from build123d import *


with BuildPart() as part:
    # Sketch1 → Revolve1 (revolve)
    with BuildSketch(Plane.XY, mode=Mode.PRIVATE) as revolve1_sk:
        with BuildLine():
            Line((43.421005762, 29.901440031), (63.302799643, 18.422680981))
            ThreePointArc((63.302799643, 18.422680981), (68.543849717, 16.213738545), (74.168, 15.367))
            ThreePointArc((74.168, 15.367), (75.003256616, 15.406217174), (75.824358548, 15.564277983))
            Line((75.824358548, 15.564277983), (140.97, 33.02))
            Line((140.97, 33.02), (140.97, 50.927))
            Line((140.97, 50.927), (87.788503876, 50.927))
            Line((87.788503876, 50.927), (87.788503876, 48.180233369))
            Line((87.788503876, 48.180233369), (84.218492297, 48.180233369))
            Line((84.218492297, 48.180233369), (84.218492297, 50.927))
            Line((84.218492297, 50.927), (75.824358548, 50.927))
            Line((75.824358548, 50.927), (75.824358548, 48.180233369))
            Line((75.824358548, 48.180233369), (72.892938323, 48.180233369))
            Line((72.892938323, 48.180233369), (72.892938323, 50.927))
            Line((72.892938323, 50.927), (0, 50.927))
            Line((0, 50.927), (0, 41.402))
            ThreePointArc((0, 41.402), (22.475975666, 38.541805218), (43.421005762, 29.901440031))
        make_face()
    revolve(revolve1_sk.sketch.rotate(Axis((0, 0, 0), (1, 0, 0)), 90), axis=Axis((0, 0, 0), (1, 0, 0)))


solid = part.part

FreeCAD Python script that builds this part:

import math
import FreeCAD as App
import Part
import Sketcher
Q = App.Units.Quantity

doc = App.newDocument("Part")
body = doc.addObject("PartDesign::Body", "Body")

sketch1 = body.newObject("Sketcher::SketchObject", "Sketch")
sketch1.AttachmentSupport = (doc.getObject("XY_Plane"), [""])
sketch1.MapMode = "FlatFace"
sketch1.addGeometry([
    Part.LineSegment(App.Vector(43.4, 29.9, 0), App.Vector(63.3, 18.4, 0)),
    Part.ArcOfCircle(Part.Circle(App.Vector(74.7, 38.2, 0), App.Vector(0, 0, 1), 22.9), math.radians(-120), math.radians(-91)),
    Part.ArcOfCircle(Part.Circle(App.Vector(74.3, 21.2, 0), App.Vector(0, 0, 1), 5.8), math.radians(-91.42), math.radians(-75)),
    Part.LineSegment(App.Vector(75.8, 15.6, 0), App.Vector(141, 33, 0)),
    Part.LineSegment(App.Vector(141, 33, 0), App.Vector(141, 50.9, 0)),
    Part.LineSegment(App.Vector(141, 50.9, 0), App.Vector(87.8, 50.9, 0)),
    Part.LineSegment(App.Vector(87.8, 50.9, 0), App.Vector(87.8, 48.2, 0)),
    Part.LineSegment(App.Vector(87.8, 48.2, 0), App.Vector(84.2, 48.2, 0)),
    Part.LineSegment(App.Vector(84.2, 48.2, 0), App.Vector(84.2, 50.9, 0)),
    Part.LineSegment(App.Vector(84.2, 50.9, 0), App.Vector(75.8, 50.9, 0)),
    Part.LineSegment(App.Vector(75.8, 50.9, 0), App.Vector(75.8, 48.2, 0)),
    Part.LineSegment(App.Vector(75.8, 48.2, 0), App.Vector(72.9, 48.2, 0)),
    Part.LineSegment(App.Vector(72.9, 48.2, 0), App.Vector(72.9, 50.9, 0)),
    Part.LineSegment(App.Vector(72.9, 50.9, 0), App.Vector(0, 50.9, 0)),
    Part.LineSegment(App.Vector(0, 50.9, 0), App.Vector(0, 41.4, 0)),
    Part.ArcOfCircle(Part.Circle(App.Vector(0.5, -44.4, 0), App.Vector(0, 0, 1), 85.9), math.radians(60), math.radians(90)),
], False)
sketch1.addConstraint([
    Sketcher.Constraint("Tangent", 0, 2, 1, 1),
    Sketcher.Constraint("Tangent", 1, 2, 2, 1),
    Sketcher.Constraint("Tangent", 2, 2, 3, 1),
    Sketcher.Constraint("Coincident", 3, 2, 4, 1),
    Sketcher.Constraint("Coincident", 4, 2, 5, 1),
    Sketcher.Constraint("Coincident", 5, 2, 6, 1),
    Sketcher.Constraint("Coincident", 6, 2, 7, 1),
    Sketcher.Constraint("Coincident", 7, 2, 8, 1),
    Sketcher.Constraint("Coincident", 8, 2, 9, 1),
    Sketcher.Constraint("Coincident", 9, 2, 10, 1),
    Sketcher.Constraint("Coincident", 10, 2, 11, 1),
    Sketcher.Constraint("Coincident", 11, 2, 12, 1),
    Sketcher.Constraint("Coincident", 12, 2, 13, 1),
    Sketcher.Constraint("Coincident", 13, 2, 14, 1),
    Sketcher.Constraint("Coincident", 14, 2, 15, 2),
    Sketcher.Constraint("Tangent", 15, 1, 0, 1),
    Sketcher.Constraint("Vertical", 4),
    Sketcher.Constraint("Horizontal", 5),
    Sketcher.Constraint("Vertical", 6),
    Sketcher.Constraint("Horizontal", 7),
    Sketcher.Constraint("Vertical", 8),
    Sketcher.Constraint("Horizontal", 9),
    Sketcher.Constraint("Vertical", 10),
    Sketcher.Constraint("Horizontal", 11),
    Sketcher.Constraint("Vertical", 12),
    Sketcher.Constraint("Horizontal", 13),
    Sketcher.Constraint("Vertical", 14),
    Sketcher.Constraint("PointOnObject", 13, 2, -2),
    Sketcher.Constraint("Horizontal", 5, 2, 8, 2),
    Sketcher.Constraint("Horizontal", 7, 2, 10, 2),
    Sketcher.Constraint("Horizontal", 9, 2, 12, 2),
    Sketcher.Constraint("Vertical", 2, 2, 9, 2),
    Sketcher.Constraint("Radius", 1, Q("0.9 in")),
    Sketcher.Constraint("Radius", 2, Q("0.23 in")),
    Sketcher.Constraint("Radius", 15, Q("3.38 in")),
    Sketcher.Constraint("Angle", 0, Q("-30 deg")),
    Sketcher.Constraint("Angle", 3, Q("15 deg")),
    Sketcher.Constraint("DistanceY", -1, 1, 3, 2, Q("1.3 in")),
    Sketcher.Constraint("DistanceY", 1, 2, 4, 2, Q("1.4 in")),
    Sketcher.Constraint("DistanceY", 4, 1, 4, 2, Q("0.705 in")),
    Sketcher.Constraint("DistanceY", 14, 2, 14, 1, Q("0.375 in")),
    Sketcher.Constraint("DistanceX", -1, 1, 1, 2, Q("2.92 in")),
    Sketcher.Constraint("DistanceX", -1, 1, 3, 2, Q("5.55 in")),
    Sketcher.Constraint("DistanceX", 7, 2, 7, 1, Q("3.570012 mm")),
    Sketcher.Constraint("DistanceX", 11, 2, 11, 1, Q("2.93142 mm")),
    Sketcher.Constraint("DistanceX", 5, 2, 5, 1, Q("53.181496 mm")),
    Sketcher.Constraint("DistanceY", 6, 2, 6, 1, Q("2.746767 mm")),
])
revolution = body.newObject("PartDesign::Revolution", "Revolution")
revolution.Profile = sketch1
revolution.ReferenceAxis = (sketch1, ["H_Axis"])
revolution.Angle = 360

doc.recompute()
